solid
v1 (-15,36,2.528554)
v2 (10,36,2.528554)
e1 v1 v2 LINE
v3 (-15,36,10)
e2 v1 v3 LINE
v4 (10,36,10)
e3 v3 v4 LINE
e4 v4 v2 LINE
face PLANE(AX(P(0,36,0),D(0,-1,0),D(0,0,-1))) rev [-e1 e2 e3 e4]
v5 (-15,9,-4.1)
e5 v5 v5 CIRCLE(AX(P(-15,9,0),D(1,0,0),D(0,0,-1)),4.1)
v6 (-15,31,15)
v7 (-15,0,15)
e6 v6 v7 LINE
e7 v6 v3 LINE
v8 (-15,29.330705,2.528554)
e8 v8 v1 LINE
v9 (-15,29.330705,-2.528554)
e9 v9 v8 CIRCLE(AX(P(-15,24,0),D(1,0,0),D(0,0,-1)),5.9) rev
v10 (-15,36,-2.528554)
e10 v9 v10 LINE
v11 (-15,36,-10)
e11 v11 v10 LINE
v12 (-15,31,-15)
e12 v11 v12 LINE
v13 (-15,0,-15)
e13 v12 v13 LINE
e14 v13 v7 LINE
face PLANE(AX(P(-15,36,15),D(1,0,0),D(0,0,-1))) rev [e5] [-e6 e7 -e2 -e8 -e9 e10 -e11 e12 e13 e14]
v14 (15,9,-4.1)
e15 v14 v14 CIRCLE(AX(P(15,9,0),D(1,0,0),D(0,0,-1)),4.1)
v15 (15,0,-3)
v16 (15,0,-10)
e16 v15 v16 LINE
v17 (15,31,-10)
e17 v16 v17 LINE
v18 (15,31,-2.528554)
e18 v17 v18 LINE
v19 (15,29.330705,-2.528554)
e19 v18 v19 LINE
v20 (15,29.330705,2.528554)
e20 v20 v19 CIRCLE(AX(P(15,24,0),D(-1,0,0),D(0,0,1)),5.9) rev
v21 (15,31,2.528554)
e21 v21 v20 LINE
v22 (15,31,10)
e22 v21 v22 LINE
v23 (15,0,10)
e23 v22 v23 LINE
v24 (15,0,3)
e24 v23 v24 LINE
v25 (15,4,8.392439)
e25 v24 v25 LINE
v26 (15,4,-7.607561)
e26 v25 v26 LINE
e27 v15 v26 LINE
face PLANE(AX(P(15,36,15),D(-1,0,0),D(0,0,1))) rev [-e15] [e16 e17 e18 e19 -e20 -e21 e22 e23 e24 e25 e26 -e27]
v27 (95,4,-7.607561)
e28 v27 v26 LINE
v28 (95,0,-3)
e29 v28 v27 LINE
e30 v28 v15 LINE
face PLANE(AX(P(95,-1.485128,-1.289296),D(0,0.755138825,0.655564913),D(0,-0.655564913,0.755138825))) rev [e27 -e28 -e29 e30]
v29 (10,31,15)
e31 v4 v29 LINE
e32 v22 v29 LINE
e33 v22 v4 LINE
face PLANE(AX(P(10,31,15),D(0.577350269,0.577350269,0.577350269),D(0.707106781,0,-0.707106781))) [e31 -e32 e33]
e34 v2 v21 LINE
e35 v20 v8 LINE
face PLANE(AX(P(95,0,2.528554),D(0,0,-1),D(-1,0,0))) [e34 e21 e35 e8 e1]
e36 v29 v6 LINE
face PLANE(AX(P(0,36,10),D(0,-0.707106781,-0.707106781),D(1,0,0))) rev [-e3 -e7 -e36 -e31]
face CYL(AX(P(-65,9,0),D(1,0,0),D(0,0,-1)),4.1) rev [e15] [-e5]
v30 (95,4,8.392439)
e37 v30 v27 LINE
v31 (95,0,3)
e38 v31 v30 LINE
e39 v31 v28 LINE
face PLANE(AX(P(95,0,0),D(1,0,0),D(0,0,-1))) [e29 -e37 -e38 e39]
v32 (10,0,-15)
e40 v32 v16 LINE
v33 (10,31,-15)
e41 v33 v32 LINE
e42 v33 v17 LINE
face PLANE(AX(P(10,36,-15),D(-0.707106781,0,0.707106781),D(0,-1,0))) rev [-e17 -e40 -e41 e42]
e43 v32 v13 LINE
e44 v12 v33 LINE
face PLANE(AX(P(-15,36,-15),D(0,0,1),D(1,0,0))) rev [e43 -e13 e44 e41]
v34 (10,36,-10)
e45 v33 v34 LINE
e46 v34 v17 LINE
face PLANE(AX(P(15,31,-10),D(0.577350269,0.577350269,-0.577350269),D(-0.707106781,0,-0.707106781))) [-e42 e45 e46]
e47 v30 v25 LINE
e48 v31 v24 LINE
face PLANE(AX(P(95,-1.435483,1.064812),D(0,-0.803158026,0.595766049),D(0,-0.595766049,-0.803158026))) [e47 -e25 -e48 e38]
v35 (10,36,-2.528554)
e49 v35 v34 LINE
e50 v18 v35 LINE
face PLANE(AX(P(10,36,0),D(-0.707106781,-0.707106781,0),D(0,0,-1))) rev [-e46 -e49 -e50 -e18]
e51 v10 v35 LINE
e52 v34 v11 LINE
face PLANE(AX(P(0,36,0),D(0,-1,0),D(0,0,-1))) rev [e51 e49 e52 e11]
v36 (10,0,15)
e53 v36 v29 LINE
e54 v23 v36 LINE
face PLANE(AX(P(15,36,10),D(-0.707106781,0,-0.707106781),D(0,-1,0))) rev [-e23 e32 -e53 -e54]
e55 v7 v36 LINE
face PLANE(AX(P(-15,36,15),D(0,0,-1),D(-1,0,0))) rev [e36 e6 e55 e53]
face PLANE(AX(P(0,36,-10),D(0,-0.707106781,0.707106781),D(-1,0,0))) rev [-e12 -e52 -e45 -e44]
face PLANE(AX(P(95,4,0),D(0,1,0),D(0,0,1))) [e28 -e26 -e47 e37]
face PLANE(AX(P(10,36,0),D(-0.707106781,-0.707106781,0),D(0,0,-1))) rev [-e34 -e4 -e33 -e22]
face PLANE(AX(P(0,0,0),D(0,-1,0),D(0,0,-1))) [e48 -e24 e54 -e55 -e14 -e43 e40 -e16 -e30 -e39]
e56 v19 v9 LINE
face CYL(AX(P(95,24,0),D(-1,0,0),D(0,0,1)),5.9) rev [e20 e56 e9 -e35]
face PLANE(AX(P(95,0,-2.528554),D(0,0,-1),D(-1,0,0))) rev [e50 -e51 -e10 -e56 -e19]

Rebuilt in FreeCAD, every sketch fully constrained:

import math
import FreeCAD as App
import Part
import Sketcher

V = App.Vector
Q = App.Units.Quantity


def edges_at(feature, points):
    """Names of the edges that pass closest to the given points."""
    edges = feature.Shape.Edges
    near = lambda p: min(range(len(edges)), key=lambda i: edges[i].distToShape(Part.Vertex(*p))[0])
    return sorted({f"Edge{near(p) + 1}" for p in points})


def add_polygon(sketch, points):
    """Adds a closed chain of lines whose ends are joined by coincident constraints."""
    first, n = sketch.GeometryCount, len(points)
    for a, b in zip(points, points[1:] + points[:1]):
        sketch.addGeometry(Part.LineSegment(App.Vector(*a, 0), App.Vector(*b, 0)), False)
    for i in range(n):
        sketch.addConstraint(Sketcher.Constraint("Coincident", first + i, 2, first + (i + 1) % n, 1))

doc = App.newDocument("Part")
body = doc.addObject("PartDesign::Body", "Body")

sketch1 = doc.addObject("Sketcher::SketchObject", "Sketch")
body.addObject(sketch1)
sketch1.AttachmentSupport = (doc.XZ_Plane, [""])
sketch1.MapMode = "FlatFace"
add_polygon(sketch1, [(-15, -15), (-15, 15), (15, 15), (15, -15)])
sketch1.addConstraint(Sketcher.Constraint("Vertical", 0))
sketch1.addConstraint(Sketcher.Constraint("Horizontal", 1))
sketch1.addConstraint(Sketcher.Constraint("Vertical", 2))
sketch1.addConstraint(Sketcher.Constraint("Horizontal", 3))
sketch1.addConstraint(Sketcher.Constraint("Symmetric", 0, 2, 2, 2, -1, 1))
sketch1.addConstraint(Sketcher.Constraint("Equal", 3, 0))
sketch1.addConstraint(Sketcher.Constraint("DistanceX", 1, 1, 1, 2, Q("30 mm")))
pad1 = doc.addObject("PartDesign::Pad", "Pad")
body.addObject(pad1)
pad1.Profile = sketch1
pad1.Length = 36
pad1.Reversed = True

sketch2 = doc.addObject("Sketcher::SketchObject", "Sketch001")
body.addObject(sketch2)
sketch2.AttachmentSupport = (doc.YZ_Plane, [""])
sketch2.MapMode = "FlatFace"
sketch2.AttachmentOffset = App.Placement(V(0, 0, 15), App.Rotation())
add_polygon(sketch2, [(4, 8), (0, 3), (0, -3), (4, -8)])
sketch2.addConstraint(Sketcher.Constraint("Vertical", 1))
sketch2.addConstraint(Sketcher.Constraint("Vertical", 3))
sketch2.addConstraint(Sketcher.Constraint("Symmetric", 0, 2, 1, 2, -1, 1))
sketch2.addConstraint(Sketcher.Constraint("DistanceY", 1, 2, 1, 1, Q("6 mm")))
sketch2.addConstraint(Sketcher.Constraint("DistanceY", 3, 1, 3, 2, Q("16 mm")))
sketch2.addConstraint(Sketcher.Constraint("DistanceX", -1, 1, 2, 2, Q("4 mm")))
sketch2.addConstraint(Sketcher.Constraint("DistanceY", 2, 2, -1, 1, Q("7.607561 mm")))
pad2 = doc.addObject("PartDesign::Pad", "Pad001")
body.addObject(pad2)
pad2.Profile = sketch2
pad2.Length = 80

sketch3 = doc.addObject("Sketcher::SketchObject", "Sketch002")
body.addObject(sketch3)
sketch3.AttachmentSupport = (doc.YZ_Plane, [""])
sketch3.MapMode = "FlatFace"
sketch3.AttachmentOffset = App.Placement(V(0, 0, 15), App.Rotation())
sketch3.addGeometry(Part.Circle(V(9, 0, 0), V(0, 0, 1), 4.1), False)
sketch3.addConstraint(Sketcher.Constraint("PointOnObject", 0, 3, -1))
sketch3.addConstraint(Sketcher.Constraint("Diameter", 0, Q("8.2 mm")))
sketch3.addConstraint(Sketcher.Constraint("DistanceX", -1, 1, 0, 3, Q("9 mm")))
pocket1 = doc.addObject("PartDesign::Pocket", "Pocket")
body.addObject(pocket1)
pocket1.Profile = sketch3
pocket1.Length = 80

sketch4 = doc.addObject("Sketcher::SketchObject", "Sketch003")
body.addObject(sketch4)
sketch4.AttachmentSupport = (doc.YZ_Plane, [""])
sketch4.MapMode = "FlatFace"
sketch4.AttachmentOffset = App.Placement(V(0, 0, 15), App.Rotation())
sketch4.addGeometry(Part.LineSegment(V(36, -3, 0), V(36, 3, 0)), False)
sketch4.addGeometry(Part.LineSegment(V(36, 3, 0), V(29, 3, 0)), False)
sketch4.addGeometry(Part.ArcOfCircle(Part.Circle(V(24, 0, 0), V(0, 0, 1), 6), math.radians(25), math.radians(180)), False)
sketch4.addGeometry(Part.ArcOfCircle(Part.Circle(V(24, 0, 0), V(0, 0, 1), 6), math.radians(180), math.radians(335)), False)
sketch4.addGeometry(Part.LineSegment(V(29, -3, 0), V(36, -3, 0)), False)
sketch4.addConstraint(Sketcher.Constraint("Coincident", 0, 2, 1, 1))
sketch4.addConstraint(Sketcher.Constraint("Coincident", 1, 2, 2, 1))
sketch4.addConstraint(Sketcher.Constraint("Tangent", 2, 2, 3, 1))
sketch4.addConstraint(Sketcher.Constraint("Coincident", 3, 2, 4, 1))
sketch4.addConstraint(Sketcher.Constraint("Coincident", 4, 2, 0, 1))
sketch4.addConstraint(Sketcher.Constraint("Vertical", 0))
sketch4.addConstraint(Sketcher.Constraint("Horizontal", 1))
sketch4.addConstraint(Sketcher.Constraint("Horizontal", 4))
sketch4.addConstraint(Sketcher.Constraint("Equal", 2, 3))
sketch4.addConstraint(Sketcher.Constraint("Symmetric", 1, 2, 3, 2, -1))
sketch4.addConstraint(Sketcher.Constraint("PointOnObject", 2, 2, -1))
sketch4.addConstraint(Sketcher.Constraint("Radius", 2, Q("5.9 mm")))
sketch4.addConstraint(Sketcher.Constraint("DistanceX", -1, 1, 2, 3, Q("24 mm")))
sketch4.addConstraint(Sketcher.Constraint("DistanceY", 0, 1, 0, 2, Q("5.057109 mm")))
sketch4.addConstraint(Sketcher.Constraint("DistanceX", 1, 2, 1, 1, Q("6.999836 mm")))
pocket2 = doc.addObject("PartDesign::Pocket", "Pocket001")
body.addObject(pocket2)
pocket2.Profile = sketch4
pocket2.Type = "ThroughAll"
pocket2.Midplane = True
doc.recompute()

chamfer = doc.addObject("PartDesign::Chamfer", "Chamfer")
body.addObject(chamfer)
chamfer.Base = (pocket2, edges_at(pocket2, [
    (0, 36, 15),
    (15, 36, -8.764),
    (15, 36, 8.764),
    (15, 18, 15),
    (15, 18, -15),
    (0, 36, -15),
]))
chamfer.Size = 5

doc.recompute()
